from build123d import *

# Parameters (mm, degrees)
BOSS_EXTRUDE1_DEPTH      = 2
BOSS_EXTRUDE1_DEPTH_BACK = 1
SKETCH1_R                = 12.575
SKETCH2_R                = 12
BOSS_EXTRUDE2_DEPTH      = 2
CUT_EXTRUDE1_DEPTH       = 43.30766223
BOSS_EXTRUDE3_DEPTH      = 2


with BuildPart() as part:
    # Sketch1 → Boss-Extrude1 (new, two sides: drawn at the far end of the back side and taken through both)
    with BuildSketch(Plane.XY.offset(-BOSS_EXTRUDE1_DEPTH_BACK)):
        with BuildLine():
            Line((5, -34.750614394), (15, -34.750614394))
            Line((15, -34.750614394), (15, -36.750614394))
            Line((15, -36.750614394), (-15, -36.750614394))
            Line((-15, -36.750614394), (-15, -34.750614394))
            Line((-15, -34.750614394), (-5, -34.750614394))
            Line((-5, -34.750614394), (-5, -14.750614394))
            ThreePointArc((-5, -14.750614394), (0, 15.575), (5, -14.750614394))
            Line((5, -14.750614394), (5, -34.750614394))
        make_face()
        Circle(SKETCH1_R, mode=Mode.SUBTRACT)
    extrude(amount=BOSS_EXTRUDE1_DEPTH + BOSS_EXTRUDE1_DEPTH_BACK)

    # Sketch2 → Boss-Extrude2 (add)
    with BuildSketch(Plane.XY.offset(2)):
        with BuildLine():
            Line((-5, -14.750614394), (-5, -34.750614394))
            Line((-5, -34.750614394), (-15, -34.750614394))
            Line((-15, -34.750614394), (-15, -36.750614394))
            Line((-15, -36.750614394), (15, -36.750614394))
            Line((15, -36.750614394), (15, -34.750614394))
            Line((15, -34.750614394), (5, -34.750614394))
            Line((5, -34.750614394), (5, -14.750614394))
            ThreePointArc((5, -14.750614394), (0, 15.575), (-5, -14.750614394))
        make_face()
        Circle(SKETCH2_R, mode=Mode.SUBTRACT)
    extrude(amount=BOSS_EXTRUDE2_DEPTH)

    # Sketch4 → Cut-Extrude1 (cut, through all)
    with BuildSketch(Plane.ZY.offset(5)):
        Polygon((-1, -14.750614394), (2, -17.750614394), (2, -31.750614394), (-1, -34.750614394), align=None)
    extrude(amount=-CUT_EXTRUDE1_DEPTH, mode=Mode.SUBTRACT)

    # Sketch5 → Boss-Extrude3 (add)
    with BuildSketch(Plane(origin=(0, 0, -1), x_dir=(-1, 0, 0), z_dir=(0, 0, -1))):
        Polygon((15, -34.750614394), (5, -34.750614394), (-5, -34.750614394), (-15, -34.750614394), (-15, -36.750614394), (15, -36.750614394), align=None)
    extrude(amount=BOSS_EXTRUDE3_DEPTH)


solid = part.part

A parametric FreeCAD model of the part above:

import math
import FreeCAD as App
import Part
import Sketcher
from FreeCAD import Vector


def add_polygon(sketch, points):
    """Adds a closed chain of lines whose ends are joined by coincident constraints."""
    first, n = sketch.GeometryCount, len(points)
    for a, b in zip(points, points[1:] + points[:1]):
        sketch.addGeometry(Part.LineSegment(App.Vector(*a, 0), App.Vector(*b, 0)), False)
    for i in range(n):
        sketch.addConstraint(Sketcher.Constraint("Coincident", first + i, 2, first + (i + 1) % n, 1))

doc = App.newDocument("Part")
params = doc.addObject("Spreadsheet::Sheet", "Params")
for row, (alias, value) in enumerate([
    ("sketch1_diameter", "25.15 mm"),
    ("sketch1_width", "10 mm"),
    ("sketch1_width2", "30 mm"),
    ("sketch1_height", "20 mm"),
    ("sketch1_height2", "2 mm"),
    ("pad1_length", "2 mm"),
    ("pad1_length2", "1 mm"),
    ("sketch2_diameter", "24 mm"),
    ("sketch2_width", "10 mm"),
    ("sketch2_width2", "30 mm"),
    ("sketch2_height", "20 mm"),
    ("sketch2_height2", "2 mm"),
    ("pad2_length", "2 mm"),
    ("sketch3_width", "20 mm"),
    ("sketch3_width2", "14 mm"),
    ("sketch4_width", "30 mm"),
    ("sketch4_height", "2 mm"),
    ("pad3_length", "2 mm"),
], start=1):
    params.set(f"A{row}", alias)
    params.set(f"B{row}", "=" + value)
    params.setAlias(f"B{row}", alias)

body = doc.addObject("PartDesign::Body", "Body")

# Sketch on XY plane
sketch1 = doc.addObject("Sketcher::SketchObject", "Sketch")
body.addObject(sketch1)
sketch1.AttachmentSupport = (doc.XY_Plane, [""])
sketch1.MapMode = "FlatFace"
sketch1.addGeometry([
    Part.LineSegment(Vector(15, -34.8, 0), Vector(5, -34.8, 0)),  # 0
    Part.LineSegment(Vector(5, -34.8, 0), Vector(5, -14.8, 0)),  # 1
    Part.ArcOfCircle(Part.Circle(Vector(0, 0, 0), Vector(0, 0, 1), 15.6), math.radians(-71), math.radians(251)),  # 2
    Part.LineSegment(Vector(-5, -14.8, 0), Vector(-5, -34.8, 0)),  # 3
    Part.LineSegment(Vector(-5, -34.8, 0), Vector(-15, -34.8, 0)),  # 4
    Part.LineSegment(Vector(-15, -34.8, 0), Vector(-15, -36.8, 0)),  # 5
    Part.LineSegment(Vector(-15, -36.8, 0), Vector(15, -36.8, 0)),  # 6
    Part.LineSegment(Vector(15, -36.8, 0), Vector(15, -34.8, 0)),  # 7
    Part.Circle(Vector(0, 0, 0), Vector(0, 0, 1), 12.6),  # 8
], False)
sketch1.addConstraint([
    Sketcher.Constraint("Coincident", 0, 2, 1, 1),
    Sketcher.Constraint("Coincident", 1, 2, 2, 1),
    Sketcher.Constraint("Coincident", 2, 2, 3, 1),
    Sketcher.Constraint("Coincident", 3, 2, 4, 1),
    Sketcher.Constraint("Coincident", 4, 2, 5, 1),
    Sketcher.Constraint("Coincident", 5, 2, 6, 1),
    Sketcher.Constraint("Coincident", 6, 2, 7, 1),
    Sketcher.Constraint("Coincident", 7, 2, 0, 1),
    Sketcher.Constraint("Horizontal", 0),
    Sketcher.Constraint("Vertical", 1),
    Sketcher.Constraint("Vertical", 3),
    Sketcher.Constraint("Horizontal", 4),
    Sketcher.Constraint("Vertical", 5),
    Sketcher.Constraint("Horizontal", 6),
    Sketcher.Constraint("Vertical", 7),
    Sketcher.Constraint("Coincident", 2, 3, -1, 1),
    Sketcher.Constraint("Coincident", 8, 3, -1, 1),
    Sketcher.Constraint("Symmetric", 0, 2, 3, 2, -2),
    Sketcher.Constraint("Equal", 0, 4),
    Sketcher.Constraint("Diameter", 8, 25.15),
    Sketcher.Constraint("DistanceX", 0, 2, 0, 1, 10.0),
    Sketcher.Constraint("DistanceX", 6, 1, 6, 2, 30.0),
    Sketcher.Constraint("DistanceY", 1, 1, 1, 2, 20.0),
    Sketcher.Constraint("DistanceY", 5, 2, 5, 1, 2.0),
    Sketcher.Constraint("Radius", 2, 15.575),
])
sketch1.setExpression("Constraints[19]", "Params.sketch1_diameter")
sketch1.setExpression("Constraints[20]", "Params.sketch1_width")
sketch1.setExpression("Constraints[21]", "Params.sketch1_width2")
sketch1.setExpression("Constraints[22]", "Params.sketch1_height")
sketch1.setExpression("Constraints[23]", "Params.sketch1_height2")
pad1 = doc.addObject("PartDesign::Pad", "Pad")
body.addObject(pad1)
pad1.Profile = sketch1
pad1.Type = "TwoLengths"
pad1.setExpression("Length", "Params.pad1_length")
pad1.setExpression("Length2", "Params.pad1_length2")

# Sketch on XY plane
sketch2 = doc.addObject("Sketcher::SketchObject", "Sketch001")
body.addObject(sketch2)
sketch2.AttachmentSupport = (doc.XY_Plane, [""])
sketch2.MapMode = "FlatFace"
sketch2.AttachmentOffset = App.Placement(Vector(0, 0, 2), App.Rotation())
sketch2.addGeometry([
    Part.LineSegment(Vector(-5, -14.8, 0), Vector(-5, -34.8, 0)),  # 0
    Part.LineSegment(Vector(-5, -34.8, 0), Vector(-15, -34.8, 0)),  # 1
    Part.LineSegment(Vector(-15, -34.8, 0), Vector(-15, -36.8, 0)),  # 2
    Part.LineSegment(Vector(-15, -36.8, 0), Vector(15, -36.8, 0)),  # 3
    Part.LineSegment(Vector(15, -36.8, 0), Vector(15, -34.8, 0)),  # 4
    Part.LineSegment(Vector(15, -34.8, 0), Vector(5, -34.8, 0)),  # 5
    Part.LineSegment(Vector(5, -34.8, 0), Vector(5, -14.8, 0)),  # 6
    Part.ArcOfCircle(Part.Circle(Vector(0, 0, 0), Vector(0, 0, 1), 15.6), math.radians(-71), math.radians(251)),  # 7
    Part.Circle(Vector(0, 0, 0), Vector(0, 0, 1), 12),  # 8
], False)
sketch2.addConstraint([
    Sketcher.Constraint("Coincident", 0, 2, 1, 1),
    Sketcher.Constraint("Coincident", 1, 2, 2, 1),
    Sketcher.Constraint("Coincident", 2, 2, 3, 1),
    Sketcher.Constraint("Coincident", 3, 2, 4, 1),
    Sketcher.Constraint("Coincident", 4, 2, 5, 1),
    Sketcher.Constraint("Coincident", 5, 2, 6, 1),
    Sketcher.Constraint("Coincident", 6, 2, 7, 1),
    Sketcher.Constraint("Coincident", 7, 2, 0, 1),
    Sketcher.Constraint("Vertical", 0),
    Sketcher.Constraint("Horizontal", 1),
    Sketcher.Constraint("Vertical", 2),
    Sketcher.Constraint("Horizontal", 3),
    Sketcher.Constraint("Vertical", 4),
    Sketcher.Constraint("Horizontal", 5),
    Sketcher.Constraint("Vertical", 6),
    Sketcher.Constraint("Coincident", 7, 3, -1, 1),
    Sketcher.Constraint("Coincident", 8, 3, -1, 1),
    Sketcher.Constraint("Symmetric", 1, 2, 4, 2, -2),
    Sketcher.Constraint("Horizontal", 6, 2, 7, 2),
    Sketcher.Constraint("Diameter", 8, 24.0),
    Sketcher.Constraint("DistanceX", 1, 2, 1, 1, 10.0),
    Sketcher.Constraint("DistanceX", 3, 1, 3, 2, 30.0),
    Sketcher.Constraint("DistanceY", 0, 2, 0, 1, 20.0),
    Sketcher.Constraint("DistanceY", 2, 2, 2, 1, 2.0),
    Sketcher.Constraint("Radius", 7, 15.575),
])
sketch2.setExpression("Constraints[19]", "Params.sketch2_diameter")
sketch2.setExpression("Constraints[20]", "Params.sketch2_width")
sketch2.setExpression("Constraints[21]", "Params.sketch2_width2")
sketch2.setExpression("Constraints[22]", "Params.sketch2_height")
sketch2.setExpression("Constraints[23]", "Params.sketch2_height2")
pad2 = doc.addObject("PartDesign::Pad", "Pad001")
body.addObject(pad2)
pad2.Profile = sketch2
pad2.setExpression("Length", "Params.pad2_length")

# Sketch on YZ plane
sketch3 = doc.addObject("Sketcher::SketchObject", "Sketch002")
body.addObject(sketch3)
sketch3.AttachmentSupport = (doc.YZ_Plane, [""])
sketch3.MapMode = "FlatFace"
sketch3.AttachmentOffset = App.Placement(Vector(0, 0, -5), App.Rotation())
add_polygon(sketch3, [(-17.8, 2), (-14.8, -1), (-34.8, -1), (-31.8, 2)])  # lines 0-3
sketch3.addConstraint([
    Sketcher.Constraint("Horizontal", 1),
    Sketcher.Constraint("Horizontal", 3),
    Sketcher.Constraint("Perpendicular", 0, 2),
    Sketcher.Constraint("Equal", 0, 2),
    Sketcher.Constraint("DistanceX", 1, 2, 1, 1, 20.0),
    Sketcher.Constraint("DistanceX", 3, 1, 3, 2, 14.0),
    Sketcher.Constraint("DistanceY", 0, 2, -1, 1, 1.0),
    Sketcher.Constraint("DistanceX", 0, 2, -1, 1, 14.750614),
])
sketch3.setExpression("Constraints[8]", "Params.sketch3_width")
sketch3.setExpression("Constraints[9]", "Params.sketch3_width2")
pocket1 = doc.addObject("PartDesign::Pocket", "Pocket")
body.addObject(pocket1)
pocket1.Profile = sketch3
pocket1.Type = "ThroughAll"
pocket1.Reversed = True

# Sketch on XY plane
sketch4 = doc.addObject("Sketcher::SketchObject", "Sketch003")
body.addObject(sketch4)
sketch4.AttachmentSupport = (doc.XY_Plane, [""])
sketch4.MapMode = "FlatFace"
sketch4.AttachmentOffset = App.Placement(Vector(0, 0, -1), App.Rotation())
add_polygon(sketch4, [(-15, -34.8), (15, -34.8), (15, -36.8), (-15, -36.8)])  # lines 0-3
sketch4.addConstraint([
    Sketcher.Constraint("Horizontal", 0),
    Sketcher.Constraint("Vertical", 1),
    Sketcher.Constraint("Horizontal", 2),
    Sketcher.Constraint("Vertical", 3),
    Sketcher.Constraint("DistanceX", 0, 1, 0, 2, 30.0),
    Sketcher.Constraint("DistanceY", 1, 2, 1, 1, 2.0),
    Sketcher.Constraint("DistanceX", -1, 1, 0, 2, 15.0),
    Sketcher.Constraint("DistanceY", 0, 2, -1, 1, 34.750614),
])
sketch4.setExpression("Constraints[8]", "Params.sketch4_width")
sketch4.setExpression("Constraints[9]", "Params.sketch4_height")
pad3 = doc.addObject("PartDesign::Pad", "Pad002")
body.addObject(pad3)
pad3.Profile = sketch4
pad3.setExpression("Length", "Params.pad3_length")
pad3.Reversed = True

doc.recompute()
